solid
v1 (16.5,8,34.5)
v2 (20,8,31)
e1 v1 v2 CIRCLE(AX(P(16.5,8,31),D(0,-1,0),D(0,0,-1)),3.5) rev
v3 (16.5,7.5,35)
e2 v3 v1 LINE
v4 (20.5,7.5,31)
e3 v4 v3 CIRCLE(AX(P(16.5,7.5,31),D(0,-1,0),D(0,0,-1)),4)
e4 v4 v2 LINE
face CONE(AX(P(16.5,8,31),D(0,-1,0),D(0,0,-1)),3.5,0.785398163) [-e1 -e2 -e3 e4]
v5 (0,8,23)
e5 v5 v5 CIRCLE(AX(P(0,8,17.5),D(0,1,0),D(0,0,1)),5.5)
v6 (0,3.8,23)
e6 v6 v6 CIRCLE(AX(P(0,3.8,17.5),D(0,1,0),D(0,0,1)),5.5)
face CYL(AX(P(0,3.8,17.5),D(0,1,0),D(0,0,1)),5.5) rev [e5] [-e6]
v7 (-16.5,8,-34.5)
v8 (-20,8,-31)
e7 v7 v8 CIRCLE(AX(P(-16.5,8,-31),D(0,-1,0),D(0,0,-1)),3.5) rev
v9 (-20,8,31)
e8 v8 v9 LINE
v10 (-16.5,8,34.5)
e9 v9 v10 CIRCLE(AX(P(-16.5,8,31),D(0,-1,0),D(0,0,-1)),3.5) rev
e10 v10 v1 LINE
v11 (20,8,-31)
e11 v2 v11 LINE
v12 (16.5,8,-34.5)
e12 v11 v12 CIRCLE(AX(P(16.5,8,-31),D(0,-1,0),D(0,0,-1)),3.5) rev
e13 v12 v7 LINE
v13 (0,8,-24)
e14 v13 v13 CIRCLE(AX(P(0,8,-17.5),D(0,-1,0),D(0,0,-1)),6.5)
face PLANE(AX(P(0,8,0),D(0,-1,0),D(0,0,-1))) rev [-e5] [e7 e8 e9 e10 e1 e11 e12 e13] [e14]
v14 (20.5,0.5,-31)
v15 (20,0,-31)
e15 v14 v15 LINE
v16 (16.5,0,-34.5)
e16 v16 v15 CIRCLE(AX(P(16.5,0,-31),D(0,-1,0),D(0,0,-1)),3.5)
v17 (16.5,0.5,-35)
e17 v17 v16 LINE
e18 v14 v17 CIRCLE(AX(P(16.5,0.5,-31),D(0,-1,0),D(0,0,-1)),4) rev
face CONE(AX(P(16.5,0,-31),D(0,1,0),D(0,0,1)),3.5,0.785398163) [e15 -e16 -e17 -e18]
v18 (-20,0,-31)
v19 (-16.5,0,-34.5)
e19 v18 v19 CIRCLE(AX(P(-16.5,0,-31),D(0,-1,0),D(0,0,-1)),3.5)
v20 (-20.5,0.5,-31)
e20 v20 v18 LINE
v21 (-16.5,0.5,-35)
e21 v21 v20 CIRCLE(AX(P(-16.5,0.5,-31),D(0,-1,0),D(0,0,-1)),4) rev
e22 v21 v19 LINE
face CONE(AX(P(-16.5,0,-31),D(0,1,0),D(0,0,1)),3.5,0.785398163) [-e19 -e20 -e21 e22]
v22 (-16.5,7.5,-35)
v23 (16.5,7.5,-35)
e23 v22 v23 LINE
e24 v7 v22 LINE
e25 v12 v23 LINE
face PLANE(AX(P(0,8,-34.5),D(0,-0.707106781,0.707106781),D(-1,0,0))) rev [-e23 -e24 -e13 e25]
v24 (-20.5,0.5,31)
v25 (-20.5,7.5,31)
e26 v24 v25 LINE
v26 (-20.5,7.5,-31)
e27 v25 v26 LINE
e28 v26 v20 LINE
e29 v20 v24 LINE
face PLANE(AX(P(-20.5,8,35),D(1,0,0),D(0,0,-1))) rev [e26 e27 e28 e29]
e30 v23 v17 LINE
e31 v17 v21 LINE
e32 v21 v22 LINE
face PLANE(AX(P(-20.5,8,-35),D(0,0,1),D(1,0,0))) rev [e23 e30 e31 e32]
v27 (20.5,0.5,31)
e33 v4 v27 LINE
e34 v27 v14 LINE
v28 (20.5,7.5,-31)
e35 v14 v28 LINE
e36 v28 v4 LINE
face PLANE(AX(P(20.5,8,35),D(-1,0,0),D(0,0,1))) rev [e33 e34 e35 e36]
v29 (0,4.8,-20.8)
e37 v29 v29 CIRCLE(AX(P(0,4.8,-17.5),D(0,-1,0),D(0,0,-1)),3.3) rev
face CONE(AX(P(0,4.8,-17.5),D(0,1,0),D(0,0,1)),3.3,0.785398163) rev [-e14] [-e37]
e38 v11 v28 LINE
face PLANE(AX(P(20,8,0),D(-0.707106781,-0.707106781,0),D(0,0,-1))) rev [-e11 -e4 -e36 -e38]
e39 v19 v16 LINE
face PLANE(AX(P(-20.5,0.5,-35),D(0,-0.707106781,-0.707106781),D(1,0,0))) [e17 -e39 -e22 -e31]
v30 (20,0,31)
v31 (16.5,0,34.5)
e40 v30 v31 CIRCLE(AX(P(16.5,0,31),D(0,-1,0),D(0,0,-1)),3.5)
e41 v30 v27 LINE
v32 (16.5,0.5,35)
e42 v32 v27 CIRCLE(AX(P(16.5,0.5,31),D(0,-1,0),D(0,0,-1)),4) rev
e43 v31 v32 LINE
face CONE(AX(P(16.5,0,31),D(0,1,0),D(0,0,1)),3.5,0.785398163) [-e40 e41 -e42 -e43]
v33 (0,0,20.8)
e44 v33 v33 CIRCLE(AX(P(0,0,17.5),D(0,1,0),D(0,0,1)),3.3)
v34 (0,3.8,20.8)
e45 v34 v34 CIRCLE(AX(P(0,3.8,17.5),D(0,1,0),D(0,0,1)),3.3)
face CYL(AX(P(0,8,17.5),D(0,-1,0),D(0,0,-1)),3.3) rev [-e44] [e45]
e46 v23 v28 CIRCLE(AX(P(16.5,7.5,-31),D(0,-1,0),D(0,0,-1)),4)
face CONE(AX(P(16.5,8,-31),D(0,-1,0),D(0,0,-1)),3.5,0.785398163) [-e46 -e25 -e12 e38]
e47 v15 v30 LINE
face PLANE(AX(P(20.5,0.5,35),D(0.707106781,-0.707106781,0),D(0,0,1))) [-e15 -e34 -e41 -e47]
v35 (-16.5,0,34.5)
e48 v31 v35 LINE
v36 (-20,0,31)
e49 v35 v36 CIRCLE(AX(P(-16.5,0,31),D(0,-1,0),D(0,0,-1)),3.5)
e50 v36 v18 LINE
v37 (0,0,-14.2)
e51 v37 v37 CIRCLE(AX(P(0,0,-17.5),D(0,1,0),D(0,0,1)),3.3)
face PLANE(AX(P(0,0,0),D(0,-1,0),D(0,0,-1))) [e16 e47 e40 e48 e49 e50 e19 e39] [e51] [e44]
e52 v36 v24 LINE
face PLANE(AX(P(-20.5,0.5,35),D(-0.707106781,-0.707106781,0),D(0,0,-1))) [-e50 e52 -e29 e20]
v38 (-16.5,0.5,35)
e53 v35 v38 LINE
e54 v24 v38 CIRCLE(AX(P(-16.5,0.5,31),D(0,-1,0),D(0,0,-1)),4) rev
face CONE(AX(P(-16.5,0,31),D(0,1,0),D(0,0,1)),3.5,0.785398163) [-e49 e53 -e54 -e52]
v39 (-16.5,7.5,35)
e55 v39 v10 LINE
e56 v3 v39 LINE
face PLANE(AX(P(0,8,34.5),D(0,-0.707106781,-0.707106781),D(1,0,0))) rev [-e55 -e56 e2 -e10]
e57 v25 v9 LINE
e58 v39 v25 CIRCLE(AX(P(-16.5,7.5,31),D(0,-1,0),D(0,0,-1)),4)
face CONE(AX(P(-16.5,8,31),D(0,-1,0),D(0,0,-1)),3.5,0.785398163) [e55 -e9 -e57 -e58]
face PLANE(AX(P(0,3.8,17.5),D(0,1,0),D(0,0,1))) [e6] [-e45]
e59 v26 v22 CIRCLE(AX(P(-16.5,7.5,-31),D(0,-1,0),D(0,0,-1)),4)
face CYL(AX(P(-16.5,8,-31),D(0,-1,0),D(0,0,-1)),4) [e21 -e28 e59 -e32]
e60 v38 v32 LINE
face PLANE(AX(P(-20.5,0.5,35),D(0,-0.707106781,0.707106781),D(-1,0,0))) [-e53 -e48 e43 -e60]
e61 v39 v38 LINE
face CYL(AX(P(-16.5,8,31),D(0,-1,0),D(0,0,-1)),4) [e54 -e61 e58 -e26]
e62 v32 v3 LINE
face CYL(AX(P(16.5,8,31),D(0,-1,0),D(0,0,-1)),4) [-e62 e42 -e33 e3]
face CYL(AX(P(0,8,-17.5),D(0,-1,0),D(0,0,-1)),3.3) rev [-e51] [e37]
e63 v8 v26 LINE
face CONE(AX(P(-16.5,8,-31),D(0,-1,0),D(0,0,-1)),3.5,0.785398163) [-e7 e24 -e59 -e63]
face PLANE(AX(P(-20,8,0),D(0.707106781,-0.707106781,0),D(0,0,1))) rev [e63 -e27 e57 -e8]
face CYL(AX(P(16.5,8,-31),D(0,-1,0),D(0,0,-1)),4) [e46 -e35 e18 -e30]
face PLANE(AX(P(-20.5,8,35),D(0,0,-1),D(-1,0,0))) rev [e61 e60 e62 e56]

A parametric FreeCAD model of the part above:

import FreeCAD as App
import Part
import Sketcher
Q = App.Units.Quantity


def edges_at(feature, points):
    """Names of the edges that pass closest to the given points."""
    edges = feature.Shape.Edges
    near = lambda p: min(range(len(edges)), key=lambda i: edges[i].distToShape(Part.Vertex(*p))[0])
    return sorted({f"Edge{near(p) + 1}" for p in points})


def add_polygon(sketch, points):
    """Adds a closed chain of lines whose ends are joined by coincident constraints."""
    first, n = sketch.GeometryCount, len(points)
    for a, b in zip(points, points[1:] + points[:1]):
        sketch.addGeometry(Part.LineSegment(App.Vector(*a, 0), App.Vector(*b, 0)), False)
    for i in range(n):
        sketch.addConstraint(Sketcher.Constraint("Coincident", first + i, 2, first + (i + 1) % n, 1))

doc = App.newDocument("Part")
body = doc.addObject("PartDesign::Body", "Body")

# Sketch on XZ plane
sketch1 = body.newObject("Sketcher::SketchObject", "Sketch")
sketch1.AttachmentSupport = (doc.getObject("XZ_Plane"), [""])
sketch1.MapMode = "FlatFace"
add_polygon(sketch1, [(-20.5, -35), (-20.5, 35), (20.5, 35), (20.5, -35)])  # lines 0-3
sketch1.addGeometry(Part.Circle(App.Vector(0, 17.5, 0), App.Vector(0, 0, 1), 3.3), False)  # 4
sketch1.addGeometry(Part.Circle(App.Vector(0, -17.5, 0), App.Vector(0, 0, 1), 3.3), False)  # 5
sketch1.addConstraint([
    Sketcher.Constraint("Vertical", 0),
    Sketcher.Constraint("Horizontal", 1),
    Sketcher.Constraint("Vertical", 2),
    Sketcher.Constraint("Horizontal", 3),
    Sketcher.Constraint("Equal", 4, 5),
    Sketcher.Constraint("Symmetric", 4, 3, 5, 3, -1, 1),
    Sketcher.Constraint("Symmetric", 0, 2, 2, 2, -1, 1),
    Sketcher.Constraint("PointOnObject", 4, 3, -2),
    Sketcher.Constraint("Diameter", 4, Q("6.6 mm")),
    Sketcher.Constraint("DistanceX", 1, 1, 1, 2, Q("41 mm")),
    Sketcher.Constraint("DistanceY", 0, 1, 0, 2, Q("70 mm")),
    Sketcher.Constraint("DistanceY", 5, 3, 4, 3, Q("35 mm")),
])
pad1 = body.newObject("PartDesign::Pad", "Pad")
pad1.Profile = sketch1
pad1.Length = 8
pad1.Reversed = True

# Sketch on XZ plane
sketch2 = body.newObject("Sketcher::SketchObject", "Sketch001")
sketch2.AttachmentSupport = (doc.getObject("XZ_Plane"), [""])
sketch2.MapMode = "FlatFace"
sketch2.AttachmentOffset = App.Placement(App.Vector(0, 0, -8), App.Rotation())
sketch2.addGeometry(Part.Circle(App.Vector(0, 17.5, 0), App.Vector(0, 0, 1), 5.5), False)
sketch2.addConstraint([
    Sketcher.Constraint("PointOnObject", 0, 3, -2),
    Sketcher.Constraint("Diameter", 0, Q("11 mm")),
    Sketcher.Constraint("DistanceY", -1, 1, 0, 3, Q("17.5 mm")),
])
pocket1 = body.newObject("PartDesign::Pocket", "Pocket")
pocket1.Profile = sketch2
pocket1.Length = 4.2
pocket1.Reversed = True
doc.recompute()

chamfer = body.newObject("PartDesign::Chamfer", "Chamfer")
chamfer.Base = (pocket1, edges_at(pocket1, [(-3.3, 8, -17.5)]))
chamfer.Size = 3.2
doc.recompute()

fillet = body.newObject("PartDesign::Fillet", "Fillet")
fillet.Base = (chamfer, edges_at(chamfer, [
    (20.5, 4, 35),
    (-20.5, 4, 35),
    (-20.5, 4, -35),
    (20.5, 4, -35),
]))
fillet.Radius = 4
doc.recompute()

chamfer2 = body.newObject("PartDesign::Chamfer", "Chamfer001")
chamfer2.Base = (fillet, edges_at(fillet, [
    (0, 0, 35),
    (0, 8, 35),
    (20.5, 0, 0),
    (-20.5, 0, 0),
    (0, 0, -35),
    (-19.328, 0, -33.828),
    (19.328, 0, -33.828),
    (19.328, 0, 33.828),
    (-19.328, 0, 33.828),
    (-20.5, 8, 0),
    (20.5, 8, 0),
    (0, 8, -35),
    (-19.328, 8, -33.828),
    (19.328, 8, -33.828),
    (19.328, 8, 33.828),
    (-19.328, 8, 33.828),
]))
chamfer2.Size = 0.5

doc.recompute()
